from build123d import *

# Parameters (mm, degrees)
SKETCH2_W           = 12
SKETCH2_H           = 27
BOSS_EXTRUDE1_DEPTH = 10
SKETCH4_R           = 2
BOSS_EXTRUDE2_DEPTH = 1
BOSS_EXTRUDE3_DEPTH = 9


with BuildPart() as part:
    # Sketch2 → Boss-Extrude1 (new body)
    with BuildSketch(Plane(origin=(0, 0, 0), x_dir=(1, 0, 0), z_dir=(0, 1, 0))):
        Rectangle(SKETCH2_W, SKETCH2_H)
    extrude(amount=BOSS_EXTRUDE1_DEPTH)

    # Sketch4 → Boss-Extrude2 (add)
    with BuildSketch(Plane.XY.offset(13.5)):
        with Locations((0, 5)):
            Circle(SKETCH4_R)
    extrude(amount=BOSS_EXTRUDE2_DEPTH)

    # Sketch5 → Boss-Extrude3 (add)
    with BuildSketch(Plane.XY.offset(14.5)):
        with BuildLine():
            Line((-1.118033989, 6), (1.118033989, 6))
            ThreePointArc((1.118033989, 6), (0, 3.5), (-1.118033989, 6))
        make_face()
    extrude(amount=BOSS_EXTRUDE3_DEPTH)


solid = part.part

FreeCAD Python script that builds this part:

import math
import FreeCAD as App
import Part
import Sketcher
Q = App.Units.Quantity


def add_polygon(sketch, points):
    """Adds a closed chain of lines whose ends are joined by coincident constraints."""
    first, n = sketch.GeometryCount, len(points)
    for a, b in zip(points, points[1:] + points[:1]):
        sketch.addGeometry(Part.LineSegment(App.Vector(*a, 0), App.Vector(*b, 0)), False)
    for i in range(n):
        sketch.addConstraint(Sketcher.Constraint("Coincident", first + i, 2, first + (i + 1) % n, 1))

doc = App.newDocument("Part")
params = doc.addObject("Spreadsheet::Sheet", "Params")
for row, (alias, value) in enumerate([
    ("sketch1_width", "12 mm"),
    ("sketch1_height", "27 mm"),
    ("pad1_length", "10 mm"),
    ("sketch2_diameter", "4 mm"),
    ("pad2_length", "1 mm"),
    ("sketch3_radius", "1.5 mm"),
    ("pad3_length", "9 mm"),
], start=1):
    params.set(f"A{row}", alias)
    params.set(f"B{row}", "=" + value)
    params.setAlias(f"B{row}", alias)

body = doc.addObject("PartDesign::Body", "Body")

# Sketch on XZ plane
sketch1 = body.newObject("Sketcher::SketchObject", "Sketch")
sketch1.AttachmentSupport = (doc.getObject("XZ_Plane"), [""])
sketch1.MapMode = "FlatFace"
add_polygon(sketch1, [(-6, -13.5), (-6, 13.5), (6, 13.5), (6, -13.5)])  # lines 0-3
sketch1.addConstraint([
    Sketcher.Constraint("Vertical", 0),
    Sketcher.Constraint("Horizontal", 1),
    Sketcher.Constraint("Vertical", 2),
    Sketcher.Constraint("Horizontal", 3),
    Sketcher.Constraint("Symmetric", 0, 2, 2, 2, -1, 1),
    Sketcher.Constraint("DistanceX", 1, 1, 1, 2, Q("12 mm")),
    Sketcher.Constraint("DistanceY", 0, 1, 0, 2, Q("27 mm")),
])
sketch1.setExpression("Constraints[9]", "Params.sketch1_width")
sketch1.setExpression("Constraints[10]", "Params.sketch1_height")
pad1 = body.newObject("PartDesign::Pad", "Pad")
pad1.Profile = sketch1
pad1.setExpression("Length", "Params.pad1_length")
pad1.Reversed = True

# Sketch on XY plane
sketch2 = body.newObject("Sketcher::SketchObject", "Sketch001")
sketch2.AttachmentSupport = (doc.getObject("XY_Plane"), [""])
sketch2.MapMode = "FlatFace"
sketch2.AttachmentOffset = App.Placement(App.Vector(0, 0, 13.5), App.Rotation())
sketch2.addGeometry(Part.Circle(App.Vector(0, 5, 0), App.Vector(0, 0, 1), 2), False)
sketch2.addConstraint([
    Sketcher.Constraint("PointOnObject", 0, 3, -2),
    Sketcher.Constraint("Diameter", 0, Q("4 mm")),
    Sketcher.Constraint("DistanceY", -1, 1, 0, 3, Q("5 mm")),
])
sketch2.setExpression("Constraints[1]", "Params.sketch2_diameter")
pad2 = body.newObject("PartDesign::Pad", "Pad001")
pad2.Profile = sketch2
pad2.setExpression("Length", "Params.pad2_length")

# Sketch on XY plane
sketch3 = body.newObject("Sketcher::SketchObject", "Sketch002")
sketch3.AttachmentSupport = (doc.getObject("XY_Plane"), [""])
sketch3.MapMode = "FlatFace"
sketch3.AttachmentOffset = App.Placement(App.Vector(0, 0, 14.5), App.Rotation())
sketch3.addGeometry([
    Part.LineSegment(App.Vector(1.118034, 6, 0), App.Vector(-1.118034, 6, 0)),
    Part.ArcOfCircle(Part.Circle(App.Vector(0, 5, 0), App.Vector(0, 0, 1), 1.5), math.radians(138.189685), math.radians(401.810315)),
], False)
sketch3.addConstraint([
    Sketcher.Constraint("Coincident", 0, 1, 1, 2),
    Sketcher.Constraint("Coincident", 1, 1, 0, 2),
    Sketcher.Constraint("Horizontal", 0),
    Sketcher.Constraint("PointOnObject", 1, 3, -2),
    Sketcher.Constraint("Radius", 1, Q("1.5 mm")),
    Sketcher.Constraint("DistanceY", -1, 1, 1, 3, Q("5 mm")),
    Sketcher.Constraint("DistanceY", -1, 1, 0, 1, Q("6 mm")),
])
sketch3.setExpression("Constraints[4]", "Params.sketch3_radius")
pad3 = body.newObject("PartDesign::Pad", "Pad002")
pad3.Profile = sketch3
pad3.setExpression("Length", "Params.pad3_length")

doc.recompute()
